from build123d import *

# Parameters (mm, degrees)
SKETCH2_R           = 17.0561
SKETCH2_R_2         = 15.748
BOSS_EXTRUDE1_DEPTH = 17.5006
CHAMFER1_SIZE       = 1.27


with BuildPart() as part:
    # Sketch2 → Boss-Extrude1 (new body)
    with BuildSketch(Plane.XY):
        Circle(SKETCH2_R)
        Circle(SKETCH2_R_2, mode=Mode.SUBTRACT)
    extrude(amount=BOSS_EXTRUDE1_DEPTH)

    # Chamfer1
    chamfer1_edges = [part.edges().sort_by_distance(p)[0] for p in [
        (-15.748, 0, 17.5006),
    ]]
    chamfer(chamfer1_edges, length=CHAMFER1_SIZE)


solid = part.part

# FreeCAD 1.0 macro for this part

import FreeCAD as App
import Part
import Sketcher
Q = App.Units.Quantity


def edges_at(feature, points):
    """Names of the edges that pass closest to the given points."""
    edges = feature.Shape.Edges
    near = lambda p: min(range(len(edges)), key=lambda i: edges[i].distToShape(Part.Vertex(*p))[0])
    return sorted({f"Edge{near(p) + 1}" for p in points})

doc = App.newDocument("Part")
body = doc.addObject("PartDesign::Body", "Body")

# Sketch on XY plane
sketch1 = body.newObject("Sketcher::SketchObject", "Sketch")
sketch1.AttachmentSupport = (doc.getObject("XY_Plane"), [""])
sketch1.MapMode = "FlatFace"
sketch1.addGeometry([
    Part.Circle(App.Vector(0, 0, 0), App.Vector(0, 0, 1), 17),
    Part.Circle(App.Vector(0, 0, 0), App.Vector(0, 0, 1), 16),
], False)
sketch1.addConstraint([
    Sketcher.Constraint("Coincident", 0, 3, -1, 1),
    Sketcher.Constraint("Coincident", 1, 3, -1, 1),
    Sketcher.Constraint("Diameter", 1, Q("1.24 in")),
    Sketcher.Constraint("Diameter", 0, Q("1.343 in")),
])
pad1 = body.newObject("PartDesign::Pad", "Pad")
pad1.Profile = sketch1
pad1.Length = Q("0.689 in")
doc.recompute()

chamfer = body.newObject("PartDesign::Chamfer", "Chamfer")
chamfer.Base = (pad1, edges_at(pad1, [(-15.748, 0, 17.501)]))
chamfer.Size = Q("0.05 in")

doc.recompute()
